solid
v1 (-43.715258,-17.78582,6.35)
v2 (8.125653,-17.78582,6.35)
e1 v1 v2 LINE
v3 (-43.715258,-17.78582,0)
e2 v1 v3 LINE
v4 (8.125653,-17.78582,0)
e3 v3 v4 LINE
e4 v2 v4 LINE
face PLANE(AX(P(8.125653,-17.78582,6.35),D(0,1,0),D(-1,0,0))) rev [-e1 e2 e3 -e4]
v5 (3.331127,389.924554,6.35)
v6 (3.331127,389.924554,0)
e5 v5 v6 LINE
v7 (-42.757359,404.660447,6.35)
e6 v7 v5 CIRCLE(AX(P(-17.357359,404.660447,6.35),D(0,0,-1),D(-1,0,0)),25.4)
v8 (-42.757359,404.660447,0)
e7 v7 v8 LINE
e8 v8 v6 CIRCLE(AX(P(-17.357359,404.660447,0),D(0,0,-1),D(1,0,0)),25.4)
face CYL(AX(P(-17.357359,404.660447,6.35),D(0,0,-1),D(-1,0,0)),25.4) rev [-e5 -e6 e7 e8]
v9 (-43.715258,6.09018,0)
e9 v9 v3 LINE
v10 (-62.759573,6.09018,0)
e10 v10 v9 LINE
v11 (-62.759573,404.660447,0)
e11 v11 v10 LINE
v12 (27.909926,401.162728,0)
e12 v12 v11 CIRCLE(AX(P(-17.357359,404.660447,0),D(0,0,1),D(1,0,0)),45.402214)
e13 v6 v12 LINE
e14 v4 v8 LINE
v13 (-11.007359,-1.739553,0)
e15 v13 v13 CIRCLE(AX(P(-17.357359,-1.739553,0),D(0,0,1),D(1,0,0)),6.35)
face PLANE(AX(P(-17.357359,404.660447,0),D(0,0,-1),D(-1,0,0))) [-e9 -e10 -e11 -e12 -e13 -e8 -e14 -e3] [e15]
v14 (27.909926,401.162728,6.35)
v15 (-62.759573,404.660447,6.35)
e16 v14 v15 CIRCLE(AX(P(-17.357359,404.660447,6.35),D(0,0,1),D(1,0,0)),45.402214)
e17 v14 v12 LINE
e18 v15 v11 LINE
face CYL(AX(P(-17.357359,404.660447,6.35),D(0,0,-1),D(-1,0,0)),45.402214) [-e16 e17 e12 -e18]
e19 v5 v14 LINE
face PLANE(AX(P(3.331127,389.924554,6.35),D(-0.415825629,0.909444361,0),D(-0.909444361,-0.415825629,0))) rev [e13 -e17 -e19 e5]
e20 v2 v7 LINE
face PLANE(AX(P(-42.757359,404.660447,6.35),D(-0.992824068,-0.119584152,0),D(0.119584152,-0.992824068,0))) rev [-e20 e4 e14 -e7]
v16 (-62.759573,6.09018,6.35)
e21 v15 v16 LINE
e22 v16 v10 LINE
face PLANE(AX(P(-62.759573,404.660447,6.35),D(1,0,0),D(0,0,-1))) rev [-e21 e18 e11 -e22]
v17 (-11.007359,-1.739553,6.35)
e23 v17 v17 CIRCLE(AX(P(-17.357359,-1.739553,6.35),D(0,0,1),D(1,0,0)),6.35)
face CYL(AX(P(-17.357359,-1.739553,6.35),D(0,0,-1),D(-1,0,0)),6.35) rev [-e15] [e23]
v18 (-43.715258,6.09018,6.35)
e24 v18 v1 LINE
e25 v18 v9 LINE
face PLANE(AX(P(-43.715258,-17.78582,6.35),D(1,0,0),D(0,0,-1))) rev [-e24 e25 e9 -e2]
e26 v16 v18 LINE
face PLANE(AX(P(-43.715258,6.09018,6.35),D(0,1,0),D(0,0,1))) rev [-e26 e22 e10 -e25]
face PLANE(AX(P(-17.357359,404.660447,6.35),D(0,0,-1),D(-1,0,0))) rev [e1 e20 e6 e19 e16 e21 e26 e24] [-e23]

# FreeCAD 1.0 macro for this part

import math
import FreeCAD as App
import Part
import Sketcher
from FreeCAD import Vector
Q = App.Units.Quantity

doc = App.newDocument("Part")
body = doc.addObject("PartDesign::Body", "Body")

# Sketch on XY plane
sketch1 = body.newObject("Sketcher::SketchObject", "Sketch")
sketch1.AttachmentSupport = (doc.getObject("XY_Plane"), [""])
sketch1.MapMode = "FlatFace"
sketch1.addGeometry(Part.LineSegment(Vector(3, 390, 0), Vector(28, 401, 0)), False)
sketch1.addGeometry(Part.ArcOfCircle(Part.Circle(Vector(-17, 405, 0), Vector(0, 0, 1), 45), math.radians(-4), math.radians(180)), False)
sketch1.addGeometry(Part.LineSegment(Vector(-63, 405, 0), Vector(-63, 6, 0)), False)
sketch1.addGeometry(Part.LineSegment(Vector(-63, 6, 0), Vector(-44, 6, 0)), False)
sketch1.addGeometry(Part.LineSegment(Vector(-44, 6, 0), Vector(-44, -18, 0)), False)
sketch1.addGeometry(Part.LineSegment(Vector(-44, -18, 0), Vector(8, -18, 0)), False)
sketch1.addGeometry(Part.LineSegment(Vector(8, -18, 0), Vector(-43, 405, 0)), False)
sketch1.addGeometry(Part.ArcOfCircle(Part.Circle(Vector(-17, 405, 0), Vector(0, 0, 1), 25), math.radians(0), math.radians(180)), False)
sketch1.addGeometry(Part.ArcOfCircle(Part.Circle(Vector(-17, 405, 0), Vector(0, 0, 1), 25), math.radians(-35), math.radians(0)), False)
sketch1.addGeometry(Part.Circle(Vector(-17, -2, 0), Vector(0, 0, 1), 6), False)
sketch1.addConstraint(Sketcher.Constraint("Coincident", 0, 2, 1, 1))
sketch1.addConstraint(Sketcher.Constraint("Tangent", 1, 2, 2, 1))
sketch1.addConstraint(Sketcher.Constraint("Coincident", 2, 2, 3, 1))
sketch1.addConstraint(Sketcher.Constraint("Coincident", 3, 2, 4, 1))
sketch1.addConstraint(Sketcher.Constraint("Coincident", 4, 2, 5, 1))
sketch1.addConstraint(Sketcher.Constraint("Coincident", 5, 2, 6, 1))
sketch1.addConstraint(Sketcher.Constraint("Coincident", 6, 2, 7, 2))
sketch1.addConstraint(Sketcher.Constraint("Tangent", 7, 1, 8, 2))
sketch1.addConstraint(Sketcher.Constraint("Coincident", 8, 1, 0, 1))
sketch1.addConstraint(Sketcher.Constraint("Vertical", 2))
sketch1.addConstraint(Sketcher.Constraint("Horizontal", 3))
sketch1.addConstraint(Sketcher.Constraint("Vertical", 4))
sketch1.addConstraint(Sketcher.Constraint("Horizontal", 5))
sketch1.addConstraint(Sketcher.Constraint("Coincident", 7, 3, 1, 3))
sketch1.addConstraint(Sketcher.Constraint("Equal", 7, 8))
sketch1.addConstraint(Sketcher.Constraint("Horizontal", 1, 2, 6, 2))
sketch1.addConstraint(Sketcher.Constraint("Horizontal", 6, 2, 7, 1))
sketch1.addConstraint(Sketcher.Constraint("Vertical", 8, 3, 9, 3))
sketch1.addConstraint(Sketcher.Constraint("Radius", 7, Q("1 in")))
sketch1.addConstraint(Sketcher.Constraint("Diameter", 9, Q("0.5 in")))
sketch1.addConstraint(Sketcher.Constraint("DistanceY", 9, 3, 1, 3, Q("16 in")))
sketch1.addConstraint(Sketcher.Constraint("DistanceY", 4, 2, 4, 1, Q("0.94 in")))
sketch1.addConstraint(Sketcher.Constraint("Radius", 1, Q("45.402214 mm")))
sketch1.addConstraint(Sketcher.Constraint("DistanceX", 5, 1, 5, 2, Q("51.840912 mm")))
sketch1.addConstraint(Sketcher.Constraint("DistanceX", 1, 2, 0, 2, Q("90.669499 mm")))
sketch1.addConstraint(Sketcher.Constraint("DistanceX", 3, 2, 9, 3, Q("26.3579 mm")))
sketch1.addConstraint(Sketcher.Constraint("DistanceX", 8, 1, 0, 2, Q("24.578799 mm")))
sketch1.addConstraint(Sketcher.Constraint("DistanceY", 2, 2, 2, 1, Q("398.570267 mm")))
sketch1.addConstraint(Sketcher.Constraint("DistanceX", 1, 3, -1, 1, Q("17.357359 mm")))
sketch1.addConstraint(Sketcher.Constraint("DistanceY", -1, 1, 0, 2, Q("401.162728 mm")))
pad1 = body.newObject("PartDesign::Pad", "Pad")
pad1.Profile = sketch1
pad1.Length = Q("0.25 in")

doc.recompute()
